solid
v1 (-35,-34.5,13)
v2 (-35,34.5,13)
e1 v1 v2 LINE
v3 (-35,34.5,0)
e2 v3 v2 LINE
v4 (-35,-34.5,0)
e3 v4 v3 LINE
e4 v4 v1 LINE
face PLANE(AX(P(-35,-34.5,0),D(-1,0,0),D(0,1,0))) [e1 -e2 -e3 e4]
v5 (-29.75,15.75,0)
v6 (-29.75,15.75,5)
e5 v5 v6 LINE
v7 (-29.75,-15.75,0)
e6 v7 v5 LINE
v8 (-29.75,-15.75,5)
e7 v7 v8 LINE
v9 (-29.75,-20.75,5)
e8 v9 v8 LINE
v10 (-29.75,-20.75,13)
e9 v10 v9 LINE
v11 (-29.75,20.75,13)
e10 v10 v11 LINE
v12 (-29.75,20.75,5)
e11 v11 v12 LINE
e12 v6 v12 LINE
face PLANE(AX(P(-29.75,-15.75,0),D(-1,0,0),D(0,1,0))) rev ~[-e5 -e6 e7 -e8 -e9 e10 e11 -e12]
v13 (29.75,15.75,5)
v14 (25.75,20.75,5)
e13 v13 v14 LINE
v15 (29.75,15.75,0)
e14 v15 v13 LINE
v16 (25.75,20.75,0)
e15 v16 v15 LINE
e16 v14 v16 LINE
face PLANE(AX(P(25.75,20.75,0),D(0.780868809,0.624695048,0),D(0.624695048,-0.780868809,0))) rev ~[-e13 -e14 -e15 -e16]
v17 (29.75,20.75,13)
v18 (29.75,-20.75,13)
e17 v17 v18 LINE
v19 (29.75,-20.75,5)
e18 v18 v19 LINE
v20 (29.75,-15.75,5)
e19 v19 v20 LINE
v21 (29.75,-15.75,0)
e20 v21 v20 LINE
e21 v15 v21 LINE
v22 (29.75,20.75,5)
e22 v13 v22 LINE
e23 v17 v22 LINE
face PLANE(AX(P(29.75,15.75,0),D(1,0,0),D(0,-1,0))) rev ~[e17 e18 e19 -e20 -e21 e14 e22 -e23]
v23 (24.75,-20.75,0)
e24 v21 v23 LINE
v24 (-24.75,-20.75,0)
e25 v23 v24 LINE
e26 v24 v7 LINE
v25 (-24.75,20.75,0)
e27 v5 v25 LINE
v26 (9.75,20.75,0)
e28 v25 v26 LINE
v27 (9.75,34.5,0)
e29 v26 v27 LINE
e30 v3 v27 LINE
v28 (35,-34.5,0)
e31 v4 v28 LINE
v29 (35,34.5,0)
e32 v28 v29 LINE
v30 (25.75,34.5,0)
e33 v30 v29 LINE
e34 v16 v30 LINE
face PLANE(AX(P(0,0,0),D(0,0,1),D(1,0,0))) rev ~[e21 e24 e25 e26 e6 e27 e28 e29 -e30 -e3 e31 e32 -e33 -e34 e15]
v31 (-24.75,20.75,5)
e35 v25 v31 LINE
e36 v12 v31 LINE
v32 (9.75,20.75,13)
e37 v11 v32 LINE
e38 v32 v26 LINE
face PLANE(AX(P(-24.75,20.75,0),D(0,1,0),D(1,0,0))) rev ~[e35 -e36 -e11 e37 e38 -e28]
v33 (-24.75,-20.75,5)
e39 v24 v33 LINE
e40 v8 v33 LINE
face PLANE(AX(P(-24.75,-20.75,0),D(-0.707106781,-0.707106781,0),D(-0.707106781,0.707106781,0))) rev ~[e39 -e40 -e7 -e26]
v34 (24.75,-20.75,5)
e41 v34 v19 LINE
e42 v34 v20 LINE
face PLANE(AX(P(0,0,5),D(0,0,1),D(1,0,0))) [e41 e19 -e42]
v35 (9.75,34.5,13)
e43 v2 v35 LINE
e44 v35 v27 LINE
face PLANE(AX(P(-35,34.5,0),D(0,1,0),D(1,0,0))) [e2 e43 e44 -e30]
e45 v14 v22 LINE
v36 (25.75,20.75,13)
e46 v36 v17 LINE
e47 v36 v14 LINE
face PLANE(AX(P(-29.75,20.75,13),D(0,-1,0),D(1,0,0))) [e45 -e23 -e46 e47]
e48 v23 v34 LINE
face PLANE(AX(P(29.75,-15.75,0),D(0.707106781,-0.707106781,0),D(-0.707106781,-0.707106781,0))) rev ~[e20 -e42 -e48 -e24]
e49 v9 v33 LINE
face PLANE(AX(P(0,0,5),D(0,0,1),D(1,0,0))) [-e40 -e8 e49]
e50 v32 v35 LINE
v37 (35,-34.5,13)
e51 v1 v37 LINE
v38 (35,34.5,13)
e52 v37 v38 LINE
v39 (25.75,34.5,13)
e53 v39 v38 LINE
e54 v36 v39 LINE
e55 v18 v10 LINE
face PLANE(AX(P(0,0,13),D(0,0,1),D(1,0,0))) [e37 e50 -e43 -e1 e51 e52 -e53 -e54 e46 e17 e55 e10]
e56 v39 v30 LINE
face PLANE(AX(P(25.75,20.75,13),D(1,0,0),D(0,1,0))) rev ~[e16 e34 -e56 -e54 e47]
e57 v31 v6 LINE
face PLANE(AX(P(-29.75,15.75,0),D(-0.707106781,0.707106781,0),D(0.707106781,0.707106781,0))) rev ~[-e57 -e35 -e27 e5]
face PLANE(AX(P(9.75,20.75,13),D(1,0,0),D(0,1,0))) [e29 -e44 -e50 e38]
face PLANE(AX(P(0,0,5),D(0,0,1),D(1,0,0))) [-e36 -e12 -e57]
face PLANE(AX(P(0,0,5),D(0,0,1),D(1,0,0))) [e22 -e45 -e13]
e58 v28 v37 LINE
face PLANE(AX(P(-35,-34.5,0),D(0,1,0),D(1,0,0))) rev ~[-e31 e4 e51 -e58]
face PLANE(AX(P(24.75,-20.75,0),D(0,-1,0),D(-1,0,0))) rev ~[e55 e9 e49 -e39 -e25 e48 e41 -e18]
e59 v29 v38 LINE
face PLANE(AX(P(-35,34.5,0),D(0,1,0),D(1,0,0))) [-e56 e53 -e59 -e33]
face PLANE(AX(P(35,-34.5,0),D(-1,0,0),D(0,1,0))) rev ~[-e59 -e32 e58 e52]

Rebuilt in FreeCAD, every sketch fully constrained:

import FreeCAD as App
import Part
import Sketcher
Q = App.Units.Quantity


def add_polygon(sketch, points):
    """Adds a closed chain of lines whose ends are joined by coincident constraints."""
    first, n = sketch.GeometryCount, len(points)
    for a, b in zip(points, points[1:] + points[:1]):
        sketch.addGeometry(Part.LineSegment(App.Vector(*a, 0), App.Vector(*b, 0)), False)
    for i in range(n):
        sketch.addConstraint(Sketcher.Constraint("Coincident", first + i, 2, first + (i + 1) % n, 1))

doc = App.newDocument("Part")
params = doc.addObject("Spreadsheet::Sheet", "Params")
for row, (alias, value) in enumerate([
    ("sketch1_width", "70 mm"),
    ("sketch1_height", "69 mm"),
    ("pad1_length", "13 mm"),
    ("sketch2_width", "59.5 mm"),
    ("sketch2_height", "41.5 mm"),
    ("pocket1_length", "8 mm"),
    ("sketch3_width", "16 mm"),
    ("sketch3_height", "13.75 mm"),
    ("sketch4_width", "50.5 mm"),
    ("sketch4_width2", "49.5 mm"),
    ("sketch4_height", "31.5 mm"),
], start=1):
    params.set(f"A{row}", alias)
    params.set(f"B{row}", "=" + value)
    params.setAlias(f"B{row}", alias)

body = doc.addObject("PartDesign::Body", "Body")

# Sketch on XY plane
sketch1 = body.newObject("Sketcher::SketchObject", "Sketch")
sketch1.AttachmentSupport = (doc.getObject("XY_Plane"), [""])
sketch1.MapMode = "FlatFace"
add_polygon(sketch1, [(-35, 34), (-35, -34), (35, -34), (35, 34)])  # lines 0-3
sketch1.addConstraint(Sketcher.Constraint("Vertical", 0))
sketch1.addConstraint(Sketcher.Constraint("Horizontal", 1))
sketch1.addConstraint(Sketcher.Constraint("Vertical", 2))
sketch1.addConstraint(Sketcher.Constraint("Horizontal", 3))
sketch1.addConstraint(Sketcher.Constraint("Symmetric", 0, 2, 2, 2, -1, 1))
sketch1.addConstraint(Sketcher.Constraint("DistanceX", 1, 1, 1, 2, Q("70 mm")))
sketch1.addConstraint(Sketcher.Constraint("DistanceY", 0, 2, 0, 1, Q("69 mm")))
sketch1.setExpression("Constraints[9]", "Params.sketch1_width")
sketch1.setExpression("Constraints[10]", "Params.sketch1_height")
pad1 = body.newObject("PartDesign::Pad", "Pad")
pad1.Profile = sketch1
pad1.setExpression("Length", "Params.pad1_length")

# Sketch on XY plane
sketch2 = body.newObject("Sketcher::SketchObject", "Sketch001")
sketch2.AttachmentSupport = (doc.getObject("XY_Plane"), [""])
sketch2.MapMode = "FlatFace"
sketch2.AttachmentOffset = App.Placement(App.Vector(0, 0, 13), App.Rotation())
add_polygon(sketch2, [(-30, 21), (-30, -21), (30, -21), (30, 21)])  # lines 0-3
sketch2.addConstraint(Sketcher.Constraint("Vertical", 0))
sketch2.addConstraint(Sketcher.Constraint("Horizontal", 1))
sketch2.addConstraint(Sketcher.Constraint("Vertical", 2))
sketch2.addConstraint(Sketcher.Constraint("Horizontal", 3))
sketch2.addConstraint(Sketcher.Constraint("Symmetric", 0, 2, 2, 2, -1, 1))
sketch2.addConstraint(Sketcher.Constraint("DistanceX", 1, 1, 1, 2, Q("59.5 mm")))
sketch2.addConstraint(Sketcher.Constraint("DistanceY", 0, 2, 0, 1, Q("41.5 mm")))
sketch2.setExpression("Constraints[9]", "Params.sketch2_width")
sketch2.setExpression("Constraints[10]", "Params.sketch2_height")
pocket1 = body.newObject("PartDesign::Pocket", "Pocket")
pocket1.Profile = sketch2
pocket1.setExpression("Length", "Params.pocket1_length")

# Sketch on XY plane
sketch3 = body.newObject("Sketcher::SketchObject", "Sketch002")
sketch3.AttachmentSupport = (doc.getObject("XY_Plane"), [""])
sketch3.MapMode = "FlatFace"
sketch3.AttachmentOffset = App.Placement(App.Vector(0, 0, 13), App.Rotation())
add_polygon(sketch3, [(10, 34), (10, 21), (26, 21), (26, 34)])  # lines 0-3
sketch3.addConstraint(Sketcher.Constraint("Vertical", 0))
sketch3.addConstraint(Sketcher.Constraint("Horizontal", 1))
sketch3.addConstraint(Sketcher.Constraint("Vertical", 2))
sketch3.addConstraint(Sketcher.Constraint("Horizontal", 3))
sketch3.addConstraint(Sketcher.Constraint("DistanceX", 1, 1, 1, 2, Q("16 mm")))
sketch3.addConstraint(Sketcher.Constraint("DistanceY", 0, 2, 0, 1, Q("13.75 mm")))
sketch3.addConstraint(Sketcher.Constraint("DistanceY", -1, 1, 2, 2, Q("34.5 mm")))
sketch3.addConstraint(Sketcher.Constraint("DistanceX", -1, 1, 0, 2, Q("9.75 mm")))
sketch3.setExpression("Constraints[8]", "Params.sketch3_width")
sketch3.setExpression("Constraints[9]", "Params.sketch3_height")
pocket2 = body.newObject("PartDesign::Pocket", "Pocket001")
pocket2.Profile = sketch3
pocket2.Type = "ThroughAll"

# Sketch on XY plane
sketch4 = body.newObject("Sketcher::SketchObject", "Sketch003")
sketch4.AttachmentSupport = (doc.getObject("XY_Plane"), [""])
sketch4.MapMode = "FlatFace"
add_polygon(sketch4, [(-30, -16), (-30, 16), (-25, 21), (26, 21), (30, 16), (30, -16), (25, -21), (-25, -21)])  # lines 0-7
sketch4.addConstraint(Sketcher.Constraint("Vertical", 0))
sketch4.addConstraint(Sketcher.Constraint("Horizontal", 2))
sketch4.addConstraint(Sketcher.Constraint("Vertical", 4))
sketch4.addConstraint(Sketcher.Constraint("Horizontal", 6))
sketch4.addConstraint(Sketcher.Constraint("Symmetric", 0, 2, 4, 2, -1, 1))
sketch4.addConstraint(Sketcher.Constraint("Symmetric", 1, 2, 5, 2, -1, 1))
sketch4.addConstraint(Sketcher.Constraint("Perpendicular", 5, 7))
sketch4.addConstraint(Sketcher.Constraint("Horizontal", 0, 2, 3, 2))
sketch4.addConstraint(Sketcher.Constraint("Horizontal", 4, 2, 7, 2))
sketch4.addConstraint(Sketcher.Constraint("Vertical", 1, 2, 6, 2))
sketch4.addConstraint(Sketcher.Constraint("DistanceX", 2, 1, 2, 2, Q("50.5 mm")))
sketch4.addConstraint(Sketcher.Constraint("DistanceX", 6, 2, 6, 1, Q("49.5 mm")))
sketch4.addConstraint(Sketcher.Constraint("DistanceY", 0, 1, 0, 2, Q("31.5 mm")))
sketch4.addConstraint(Sketcher.Constraint("DistanceX", 0, 2, 1, 2, Q("5 mm")))
sketch4.setExpression("Constraints[18]", "Params.sketch4_width")
sketch4.setExpression("Constraints[19]", "Params.sketch4_width2")
sketch4.setExpression("Constraints[20]", "Params.sketch4_height")
pocket3 = body.newObject("PartDesign::Pocket", "Pocket002")
pocket3.Profile = sketch4
pocket3.Type = "ThroughAll"
pocket3.Reversed = True

doc.recompute()
